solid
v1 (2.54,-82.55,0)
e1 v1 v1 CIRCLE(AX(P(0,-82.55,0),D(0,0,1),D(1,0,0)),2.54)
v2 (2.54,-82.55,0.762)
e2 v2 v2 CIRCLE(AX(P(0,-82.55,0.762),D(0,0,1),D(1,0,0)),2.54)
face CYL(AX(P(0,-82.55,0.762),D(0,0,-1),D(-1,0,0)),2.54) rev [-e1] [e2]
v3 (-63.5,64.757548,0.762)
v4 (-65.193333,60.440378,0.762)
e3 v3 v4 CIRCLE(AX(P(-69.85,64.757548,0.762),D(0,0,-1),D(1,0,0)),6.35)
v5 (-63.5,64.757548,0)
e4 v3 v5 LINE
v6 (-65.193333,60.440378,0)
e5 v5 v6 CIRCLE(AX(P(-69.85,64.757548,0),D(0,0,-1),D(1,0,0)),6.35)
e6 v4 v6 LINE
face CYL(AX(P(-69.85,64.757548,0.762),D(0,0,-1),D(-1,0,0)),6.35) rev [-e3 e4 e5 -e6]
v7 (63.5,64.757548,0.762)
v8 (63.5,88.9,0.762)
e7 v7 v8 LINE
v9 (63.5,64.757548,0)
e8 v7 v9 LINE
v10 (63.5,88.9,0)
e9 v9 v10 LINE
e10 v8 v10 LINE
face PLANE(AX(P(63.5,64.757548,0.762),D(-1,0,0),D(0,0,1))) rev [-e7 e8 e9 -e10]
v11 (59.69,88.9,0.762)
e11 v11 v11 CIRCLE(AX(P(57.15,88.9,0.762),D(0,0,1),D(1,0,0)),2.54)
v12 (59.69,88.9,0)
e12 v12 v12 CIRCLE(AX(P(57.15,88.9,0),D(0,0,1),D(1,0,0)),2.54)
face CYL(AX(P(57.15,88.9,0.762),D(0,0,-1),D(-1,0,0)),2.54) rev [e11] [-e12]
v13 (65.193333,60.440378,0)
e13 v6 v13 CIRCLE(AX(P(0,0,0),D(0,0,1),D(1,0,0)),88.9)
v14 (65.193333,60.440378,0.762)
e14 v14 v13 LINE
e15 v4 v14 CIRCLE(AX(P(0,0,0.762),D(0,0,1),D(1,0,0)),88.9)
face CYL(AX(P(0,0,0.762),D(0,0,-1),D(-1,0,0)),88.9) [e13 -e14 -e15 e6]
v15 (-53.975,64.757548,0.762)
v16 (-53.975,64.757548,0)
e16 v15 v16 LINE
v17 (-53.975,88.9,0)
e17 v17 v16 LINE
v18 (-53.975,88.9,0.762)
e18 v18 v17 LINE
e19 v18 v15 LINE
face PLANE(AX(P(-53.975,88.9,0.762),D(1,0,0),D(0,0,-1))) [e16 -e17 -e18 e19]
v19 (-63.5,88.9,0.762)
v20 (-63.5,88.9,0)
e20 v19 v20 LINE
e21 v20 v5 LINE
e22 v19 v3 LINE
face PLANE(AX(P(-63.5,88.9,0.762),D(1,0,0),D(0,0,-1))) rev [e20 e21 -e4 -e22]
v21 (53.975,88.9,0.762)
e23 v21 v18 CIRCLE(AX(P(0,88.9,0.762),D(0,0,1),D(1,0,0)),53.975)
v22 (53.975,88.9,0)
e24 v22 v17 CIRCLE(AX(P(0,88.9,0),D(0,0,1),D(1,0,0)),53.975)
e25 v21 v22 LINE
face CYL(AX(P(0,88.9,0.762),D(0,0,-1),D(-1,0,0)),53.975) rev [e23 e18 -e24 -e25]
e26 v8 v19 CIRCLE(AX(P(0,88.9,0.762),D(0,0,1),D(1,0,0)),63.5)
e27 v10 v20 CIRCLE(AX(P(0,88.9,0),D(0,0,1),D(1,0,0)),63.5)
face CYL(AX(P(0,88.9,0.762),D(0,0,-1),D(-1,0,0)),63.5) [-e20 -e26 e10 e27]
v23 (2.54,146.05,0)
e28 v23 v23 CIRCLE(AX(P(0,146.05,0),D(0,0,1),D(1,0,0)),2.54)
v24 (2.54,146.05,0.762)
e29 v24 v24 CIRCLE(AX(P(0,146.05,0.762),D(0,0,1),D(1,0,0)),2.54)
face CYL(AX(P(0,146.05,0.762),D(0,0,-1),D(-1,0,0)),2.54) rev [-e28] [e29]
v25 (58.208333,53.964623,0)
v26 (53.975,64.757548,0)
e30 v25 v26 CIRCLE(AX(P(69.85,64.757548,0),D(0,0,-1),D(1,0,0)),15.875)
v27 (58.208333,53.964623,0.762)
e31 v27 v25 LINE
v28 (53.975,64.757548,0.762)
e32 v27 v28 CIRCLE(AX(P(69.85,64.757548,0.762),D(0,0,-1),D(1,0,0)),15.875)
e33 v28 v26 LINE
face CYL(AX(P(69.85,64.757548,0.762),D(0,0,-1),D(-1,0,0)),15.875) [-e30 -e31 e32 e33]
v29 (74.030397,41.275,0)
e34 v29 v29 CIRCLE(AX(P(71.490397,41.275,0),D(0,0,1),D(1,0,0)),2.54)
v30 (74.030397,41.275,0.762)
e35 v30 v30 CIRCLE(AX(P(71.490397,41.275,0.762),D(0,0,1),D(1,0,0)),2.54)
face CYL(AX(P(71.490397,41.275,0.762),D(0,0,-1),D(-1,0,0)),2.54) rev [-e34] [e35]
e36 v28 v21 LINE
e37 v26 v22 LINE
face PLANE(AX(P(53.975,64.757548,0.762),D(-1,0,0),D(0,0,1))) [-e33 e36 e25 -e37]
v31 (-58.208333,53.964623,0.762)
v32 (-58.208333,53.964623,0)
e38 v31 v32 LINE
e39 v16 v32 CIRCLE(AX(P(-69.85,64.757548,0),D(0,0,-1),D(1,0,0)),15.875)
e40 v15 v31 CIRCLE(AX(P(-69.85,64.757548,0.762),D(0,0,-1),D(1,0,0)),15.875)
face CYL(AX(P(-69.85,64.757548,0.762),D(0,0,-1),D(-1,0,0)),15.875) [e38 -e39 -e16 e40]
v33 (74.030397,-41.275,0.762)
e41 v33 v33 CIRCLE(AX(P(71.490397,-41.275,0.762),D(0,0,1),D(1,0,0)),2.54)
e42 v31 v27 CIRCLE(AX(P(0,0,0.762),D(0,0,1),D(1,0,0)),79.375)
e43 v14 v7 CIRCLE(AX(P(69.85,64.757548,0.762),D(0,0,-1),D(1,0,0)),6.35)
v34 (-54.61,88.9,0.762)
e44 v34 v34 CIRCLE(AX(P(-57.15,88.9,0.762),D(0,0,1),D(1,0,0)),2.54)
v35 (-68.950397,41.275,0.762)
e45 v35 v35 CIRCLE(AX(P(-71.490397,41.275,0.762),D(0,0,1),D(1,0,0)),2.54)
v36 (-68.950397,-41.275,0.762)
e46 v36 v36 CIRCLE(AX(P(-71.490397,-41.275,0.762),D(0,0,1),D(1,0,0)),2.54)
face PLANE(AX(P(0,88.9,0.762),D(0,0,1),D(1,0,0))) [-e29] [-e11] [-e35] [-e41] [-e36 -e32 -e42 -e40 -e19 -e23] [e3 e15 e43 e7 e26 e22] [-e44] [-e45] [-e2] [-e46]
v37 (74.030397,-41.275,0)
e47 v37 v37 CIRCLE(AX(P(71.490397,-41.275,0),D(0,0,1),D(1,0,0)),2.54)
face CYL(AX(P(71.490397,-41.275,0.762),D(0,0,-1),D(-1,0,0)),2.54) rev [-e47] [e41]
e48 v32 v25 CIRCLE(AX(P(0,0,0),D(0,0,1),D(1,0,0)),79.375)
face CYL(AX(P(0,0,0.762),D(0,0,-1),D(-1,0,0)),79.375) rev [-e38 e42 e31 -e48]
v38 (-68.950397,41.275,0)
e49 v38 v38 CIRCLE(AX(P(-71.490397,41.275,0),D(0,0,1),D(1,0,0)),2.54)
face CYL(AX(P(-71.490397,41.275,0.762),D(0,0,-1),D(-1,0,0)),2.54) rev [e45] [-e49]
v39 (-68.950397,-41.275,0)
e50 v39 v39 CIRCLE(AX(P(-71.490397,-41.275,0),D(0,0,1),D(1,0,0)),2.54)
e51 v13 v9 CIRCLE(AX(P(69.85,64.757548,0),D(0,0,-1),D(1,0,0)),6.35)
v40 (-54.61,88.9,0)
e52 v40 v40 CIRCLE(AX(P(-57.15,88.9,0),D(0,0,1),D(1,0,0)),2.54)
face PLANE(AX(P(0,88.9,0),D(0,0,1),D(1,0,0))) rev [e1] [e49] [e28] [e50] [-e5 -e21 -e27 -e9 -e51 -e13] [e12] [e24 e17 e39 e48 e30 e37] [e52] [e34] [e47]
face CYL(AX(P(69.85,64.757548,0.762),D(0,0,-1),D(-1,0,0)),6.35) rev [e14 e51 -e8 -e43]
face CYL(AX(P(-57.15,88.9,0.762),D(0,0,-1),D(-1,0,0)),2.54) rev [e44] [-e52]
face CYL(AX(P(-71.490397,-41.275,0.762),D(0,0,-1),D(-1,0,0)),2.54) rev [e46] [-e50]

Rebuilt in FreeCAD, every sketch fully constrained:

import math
import FreeCAD as App
import Part
import Sketcher
Q = App.Units.Quantity

doc = App.newDocument("Part")
body = doc.addObject("PartDesign::Body", "Body")

# Sketch on XY plane
sketch1 = doc.addObject("Sketcher::SketchObject", "Sketch")
body.addObject(sketch1)
sketch1.AttachmentSupport = (doc.XY_Plane, [""])
sketch1.MapMode = "FlatFace"
sketch1.addGeometry([
    Part.LineSegment(App.Vector(-63.5, 88.9, 0), App.Vector(-63.5, 64.8, 0)),  # 0
    Part.ArcOfCircle(Part.Circle(App.Vector(-69.9, 64.8, 0), App.Vector(0, 0, 1), 6.4), math.radians(-43), math.radians(0)),  # 1
    Part.ArcOfCircle(Part.Circle(App.Vector(0, 0, 0), App.Vector(0, 0, 1), 88.9), math.radians(137), math.radians(403)),  # 2
    Part.ArcOfCircle(Part.Circle(App.Vector(69.9, 64.8, 0), App.Vector(0, 0, 1), 6.4), math.radians(-180), math.radians(-137)),  # 3
    Part.LineSegment(App.Vector(63.5, 64.8, 0), App.Vector(63.5, 88.9, 0)),  # 4
    Part.ArcOfCircle(Part.Circle(App.Vector(0, 88.9, 0), App.Vector(0, 0, 1), 63.5), math.radians(0), math.radians(180)),  # 5
    Part.Circle(App.Vector(-71.5, -41.3, 0), App.Vector(0, 0, 1), 2.5),  # 6
    Part.Circle(App.Vector(0, -82.5, 0), App.Vector(0, 0, 1), 2.5),  # 7
    Part.Circle(App.Vector(71.5, -41.3, 0), App.Vector(0, 0, 1), 2.5),  # 8
    Part.Circle(App.Vector(-71.5, 41.3, 0), App.Vector(0, 0, 1), 2.5),  # 9
    Part.Circle(App.Vector(-57.1, 88.9, 0), App.Vector(0, 0, 1), 2.5),  # 10
    Part.LineSegment(App.Vector(-54, 64.8, 0), App.Vector(-54, 88.9, 0)),  # 11
    Part.ArcOfCircle(Part.Circle(App.Vector(0, 88.9, 0), App.Vector(0, 0, 1), 54), math.radians(0), math.radians(180)),  # 12
    Part.LineSegment(App.Vector(54, 88.9, 0), App.Vector(54, 64.8, 0)),  # 13
    Part.ArcOfCircle(Part.Circle(App.Vector(69.8, 64.8, 0), App.Vector(0, 0, 1), 15.9), math.radians(180), math.radians(223)),  # 14
    Part.ArcOfCircle(Part.Circle(App.Vector(0, 0, 0), App.Vector(0, 0, 1), 79.4), math.radians(137), math.radians(403)),  # 15
    Part.ArcOfCircle(Part.Circle(App.Vector(-69.8, 64.8, 0), App.Vector(0, 0, 1), 15.9), math.radians(-43), math.radians(0)),  # 16
    Part.Circle(App.Vector(71.5, 41.3, 0), App.Vector(0, 0, 1), 2.5),  # 17
    Part.Circle(App.Vector(57.1, 88.9, 0), App.Vector(0, 0, 1), 2.5),  # 18
    Part.Circle(App.Vector(0, 146.1, 0), App.Vector(0, 0, 1), 2.5),  # 19
], False)
sketch1.addConstraint([
    Sketcher.Constraint("Tangent", 0, 2, 1, 2),
    Sketcher.Constraint("Tangent", 1, 1, 2, 1),
    Sketcher.Constraint("Tangent", 2, 2, 3, 2),
    Sketcher.Constraint("Tangent", 3, 1, 4, 1),
    Sketcher.Constraint("Tangent", 4, 2, 5, 1),
    Sketcher.Constraint("Tangent", 5, 2, 0, 1),
    Sketcher.Constraint("Tangent", 11, 2, 12, 2),
    Sketcher.Constraint("Tangent", 12, 1, 13, 1),
    Sketcher.Constraint("Tangent", 13, 2, 14, 1),
    Sketcher.Constraint("Tangent", 14, 2, 15, 2),
    Sketcher.Constraint("Tangent", 15, 1, 16, 1),
    Sketcher.Constraint("Tangent", 16, 2, 11, 1),
    Sketcher.Constraint("Vertical", 0),
    Sketcher.Constraint("Vertical", 4),
    Sketcher.Constraint("Vertical", 11),
    Sketcher.Constraint("Vertical", 13),
    Sketcher.Constraint("Coincident", 2, 3, -1, 1),
    Sketcher.Constraint("Coincident", 15, 3, -1, 1),
    Sketcher.Constraint("Coincident", 12, 3, 5, 3),
    Sketcher.Constraint("Coincident", 14, 3, 3, 3),
    Sketcher.Constraint("Equal", 1, 3),
    Sketcher.Constraint("Equal", 6, 7),
    Sketcher.Constraint("Equal", 7, 8),
    Sketcher.Constraint("Equal", 8, 9),
    Sketcher.Constraint("Equal", 9, 10),
    Sketcher.Constraint("Equal", 14, 16),
    Sketcher.Constraint("Equal", 10, 17),
    Sketcher.Constraint("Equal", 17, 18),
    Sketcher.Constraint("Equal", 18, 19),
    Sketcher.Constraint("Symmetric", 8, 3, 9, 3, -1, 1),
    Sketcher.Constraint("Symmetric", 6, 3, 17, 3, -1, 1),
    Sketcher.Constraint("Symmetric", 6, 3, 8, 3, -2),
    Sketcher.Constraint("Symmetric", 10, 3, 18, 3, -2),
    Sketcher.Constraint("PointOnObject", 5, 3, -2),
    Sketcher.Constraint("PointOnObject", 7, 3, -2),
    Sketcher.Constraint("PointOnObject", 19, 3, -2),
    Sketcher.Constraint("Horizontal", 5, 3, 10, 3),
    Sketcher.Constraint("Diameter", 6, Q("0.2 in")),
    Sketcher.Constraint("Radius", 2, Q("3.5 in")),
    Sketcher.Constraint("Radius", 5, Q("2.5 in")),
    Sketcher.Constraint("Radius", 1, Q("0.25 in")),
    Sketcher.Constraint("Radius", 12, Q("2.125 in")),
    Sketcher.Constraint("DistanceX", 10, 3, 3, 3, Q("5 in")),
    Sketcher.Constraint("DistanceY", -1, 1, 5, 3, Q("3.5 in")),
    Sketcher.Constraint("DistanceY", 7, 3, -1, 1, Q("3.25 in")),
    Sketcher.Constraint("DistanceY", -1, 1, 19, 3, Q("5.75 in")),
    Sketcher.Constraint("DistanceY", 6, 3, 9, 3, Q("3.25 in")),
    Sketcher.Constraint("DistanceX", 6, 3, -1, 1, 71.490397),
])
pad1 = doc.addObject("PartDesign::Pad", "Pad")
body.addObject(pad1)
pad1.Profile = sketch1
pad1.Length = Q("0.03 in")

doc.recompute()
